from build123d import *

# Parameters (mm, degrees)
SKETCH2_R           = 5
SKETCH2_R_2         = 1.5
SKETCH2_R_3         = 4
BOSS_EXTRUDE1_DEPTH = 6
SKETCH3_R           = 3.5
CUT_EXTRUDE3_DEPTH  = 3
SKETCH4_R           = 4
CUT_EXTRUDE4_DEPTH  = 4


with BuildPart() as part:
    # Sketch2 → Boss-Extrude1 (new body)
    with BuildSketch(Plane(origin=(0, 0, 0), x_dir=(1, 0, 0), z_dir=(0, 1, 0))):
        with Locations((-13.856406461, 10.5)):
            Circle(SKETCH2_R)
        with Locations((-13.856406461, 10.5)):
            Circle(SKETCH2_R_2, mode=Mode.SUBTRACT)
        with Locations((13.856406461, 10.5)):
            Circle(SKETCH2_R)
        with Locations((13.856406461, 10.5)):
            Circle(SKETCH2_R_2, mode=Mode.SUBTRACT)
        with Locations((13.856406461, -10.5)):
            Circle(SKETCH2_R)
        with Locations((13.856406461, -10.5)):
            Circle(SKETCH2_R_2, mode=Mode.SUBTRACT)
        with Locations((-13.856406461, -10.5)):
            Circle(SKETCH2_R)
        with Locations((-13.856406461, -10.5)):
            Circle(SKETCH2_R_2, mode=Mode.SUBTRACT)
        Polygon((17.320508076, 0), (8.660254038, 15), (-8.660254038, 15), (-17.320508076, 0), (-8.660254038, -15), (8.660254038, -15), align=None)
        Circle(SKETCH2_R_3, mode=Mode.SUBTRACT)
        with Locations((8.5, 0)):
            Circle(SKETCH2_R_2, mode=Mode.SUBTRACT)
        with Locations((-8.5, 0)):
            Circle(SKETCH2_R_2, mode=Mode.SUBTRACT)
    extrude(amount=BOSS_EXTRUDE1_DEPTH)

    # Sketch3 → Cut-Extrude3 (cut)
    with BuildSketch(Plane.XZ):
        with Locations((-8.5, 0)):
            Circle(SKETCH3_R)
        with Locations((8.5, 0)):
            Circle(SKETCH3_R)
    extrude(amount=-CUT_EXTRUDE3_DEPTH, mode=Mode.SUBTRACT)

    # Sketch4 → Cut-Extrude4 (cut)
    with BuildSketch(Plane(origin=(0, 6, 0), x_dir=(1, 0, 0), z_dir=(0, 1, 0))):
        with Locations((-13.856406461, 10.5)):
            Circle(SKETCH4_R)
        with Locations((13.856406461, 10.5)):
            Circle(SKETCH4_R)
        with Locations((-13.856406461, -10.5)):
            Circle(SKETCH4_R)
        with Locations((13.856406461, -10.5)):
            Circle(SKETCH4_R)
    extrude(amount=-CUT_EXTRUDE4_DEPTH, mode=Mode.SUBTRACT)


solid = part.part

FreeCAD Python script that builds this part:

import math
import FreeCAD as App
import Part
import Sketcher
from FreeCAD import Vector
Q = App.Units.Quantity

doc = App.newDocument("Part")
body = doc.addObject("PartDesign::Body", "Body")

# Sketch on XZ plane
sketch1 = body.newObject("Sketcher::SketchObject", "Sketch")
sketch1.AttachmentSupport = (doc.getObject("XZ_Plane"), [""])
sketch1.MapMode = "FlatFace"
sketch1.addGeometry([
    Part.LineSegment(Vector(14.140421, 5.508073, 0), Vector(17.320508, 0, 0)),  # 0
    Part.LineSegment(Vector(17.320508, 0, 0), Vector(14.140421, -5.508073, 0)),  # 1
    Part.ArcOfCircle(Part.Circle(Vector(13.856406, -10.5, 0), Vector(0, 0, 1), 5), math.radians(-146.743684), math.radians(86.743684)),  # 2
    Part.LineSegment(Vector(9.675278, -13.241927, 0), Vector(8.660254, -15, 0)),  # 3
    Part.LineSegment(Vector(8.660254, -15, 0), Vector(-8.660254, -15, 0)),  # 4
    Part.LineSegment(Vector(-8.660254, -15, 0), Vector(-9.675278, -13.241927, 0)),  # 5
    Part.ArcOfCircle(Part.Circle(Vector(-13.856406, -10.5, 0), Vector(0, 0, 1), 5), math.radians(93.256316), math.radians(326.743684)),  # 6
    Part.LineSegment(Vector(-14.140421, -5.508073, 0), Vector(-17.320508, 0, 0)),  # 7
    Part.LineSegment(Vector(-17.320508, 0, 0), Vector(-14.140421, 5.508073, 0)),  # 8
    Part.ArcOfCircle(Part.Circle(Vector(-13.856406, 10.5, 0), Vector(0, 0, 1), 5), math.radians(33.256316), math.radians(266.743684)),  # 9
    Part.LineSegment(Vector(-9.675278, 13.241927, 0), Vector(-8.660254, 15, 0)),  # 10
    Part.LineSegment(Vector(-8.660254, 15, 0), Vector(8.660254, 15, 0)),  # 11
    Part.LineSegment(Vector(8.660254, 15, 0), Vector(9.675278, 13.241927, 0)),  # 12
    Part.ArcOfCircle(Part.Circle(Vector(13.856406, 10.5, 0), Vector(0, 0, 1), 5), math.radians(-86.743684), math.radians(146.743684)),  # 13
    Part.Circle(Vector(-13.856406, 10.5, 0), Vector(0, 0, 1), 1.5),  # 14
    Part.Circle(Vector(13.856406, 10.5, 0), Vector(0, 0, 1), 1.5),  # 15
    Part.Circle(Vector(-8.5, 0, 0), Vector(0, 0, 1), 1.5),  # 16
    Part.Circle(Vector(0, 0, 0), Vector(0, 0, 1), 4),  # 17
    Part.Circle(Vector(-13.856406, -10.5, 0), Vector(0, 0, 1), 1.5),  # 18
    Part.Circle(Vector(8.5, 0, 0), Vector(0, 0, 1), 1.5),  # 19
    Part.Circle(Vector(13.856406, -10.5, 0), Vector(0, 0, 1), 1.5),  # 20
], False)
sketch1.addConstraint([
    Sketcher.Constraint("Coincident", 0, 2, 1, 1),
    Sketcher.Constraint("Coincident", 1, 2, 2, 2),
    Sketcher.Constraint("Coincident", 2, 1, 3, 1),
    Sketcher.Constraint("Coincident", 3, 2, 4, 1),
    Sketcher.Constraint("Coincident", 4, 2, 5, 1),
    Sketcher.Constraint("Coincident", 5, 2, 6, 2),
    Sketcher.Constraint("Coincident", 6, 1, 7, 1),
    Sketcher.Constraint("Coincident", 7, 2, 8, 1),
    Sketcher.Constraint("Coincident", 8, 2, 9, 2),
    Sketcher.Constraint("Coincident", 9, 1, 10, 1),
    Sketcher.Constraint("Coincident", 10, 2, 11, 1),
    Sketcher.Constraint("Coincident", 11, 2, 12, 1),
    Sketcher.Constraint("Coincident", 12, 2, 13, 2),
    Sketcher.Constraint("Coincident", 13, 1, 0, 1),
    Sketcher.Constraint("Horizontal", 4),
    Sketcher.Constraint("Horizontal", 11),
    Sketcher.Constraint("Coincident", 17, 3, -1, 1),
    Sketcher.Constraint("Coincident", 14, 3, 9, 3),
    Sketcher.Constraint("Coincident", 15, 3, 13, 3),
    Sketcher.Constraint("Coincident", 18, 3, 6, 3),
    Sketcher.Constraint("Coincident", 20, 3, 2, 3),
    Sketcher.Constraint("Equal", 2, 6),
    Sketcher.Constraint("Equal", 6, 9),
    Sketcher.Constraint("Equal", 9, 13),
    Sketcher.Constraint("Equal", 14, 15),
    Sketcher.Constraint("Equal", 15, 16),
    Sketcher.Constraint("Equal", 16, 18),
    Sketcher.Constraint("Equal", 18, 19),
    Sketcher.Constraint("Equal", 19, 20),
    Sketcher.Constraint("Symmetric", 2, 3, 9, 3, -1, 1),
    Sketcher.Constraint("Symmetric", 6, 3, 13, 3, -1, 1),
    Sketcher.Constraint("Symmetric", 16, 3, 19, 3, -1, 1),
    Sketcher.Constraint("Symmetric", 0, 2, 7, 2, -1, 1),
    Sketcher.Constraint("Symmetric", 3, 2, 10, 2, -1, 1),
    Sketcher.Constraint("Symmetric", 2, 3, 6, 3, -2),
    Sketcher.Constraint("PointOnObject", 16, 3, -1),
    Sketcher.Constraint("PointOnObject", 0, 2, -1),
    Sketcher.Constraint("Parallel", 1, 3),
    Sketcher.Constraint("Parallel", 0, 5),
    Sketcher.Constraint("Parallel", 5, 7),
    Sketcher.Constraint("Parallel", 3, 8),
    Sketcher.Constraint("Parallel", 8, 10),
    Sketcher.Constraint("Parallel", 7, 12),
    Sketcher.Constraint("Horizontal", 2, 1, 5, 2),
    Sketcher.Constraint("Horizontal", 1, 2, 6, 1),
    Sketcher.Constraint("Horizontal", 9, 1, 12, 2),
    Sketcher.Constraint("Diameter", 14, 3.0),
    Sketcher.Constraint("Diameter", 17, 8.0),
    Sketcher.Constraint("Radius", 2, 5.0),
    Sketcher.Constraint("Angle", 0, Q("-60 deg")),
    Sketcher.Constraint("DistanceY", 3, 2, -1, 1, 15.0),
    Sketcher.Constraint("DistanceY", 6, 3, 9, 3, 21.0),
    Sketcher.Constraint("DistanceX", 16, 3, 19, 3, 17.0),
    Sketcher.Constraint("DistanceX", 4, 2, 4, 1, 17.320508),
    Sketcher.Constraint("DistanceX", 2, 3, 0, 2, 3.464102),
    Sketcher.Constraint("DistanceX", -1, 1, 0, 2, 17.320508),
])
pad1 = body.newObject("PartDesign::Pad", "Pad")
pad1.Profile = sketch1
pad1.Length = 6
pad1.Reversed = True

# Sketch on XZ plane
sketch2 = body.newObject("Sketcher::SketchObject", "Sketch001")
sketch2.AttachmentSupport = (doc.getObject("XZ_Plane"), [""])
sketch2.MapMode = "FlatFace"
sketch2.addGeometry([
    Part.Circle(Vector(-8.5, 0, 0), Vector(0, 0, 1), 3.5),
    Part.Circle(Vector(8.5, 0, 0), Vector(0, 0, 1), 3.5),
], False)
sketch2.addConstraint([
    Sketcher.Constraint("Equal", 0, 1),
    Sketcher.Constraint("Symmetric", 0, 3, 1, 3, -1, 1),
    Sketcher.Constraint("PointOnObject", 0, 3, -1),
    Sketcher.Constraint("Diameter", 0, 7.0),
    Sketcher.Constraint("DistanceX", 0, 3, 1, 3, 17.0),
])
pocket1 = body.newObject("PartDesign::Pocket", "Pocket")
pocket1.Profile = sketch2
pocket1.Length = 3

# Sketch on XZ plane
sketch3 = body.newObject("Sketcher::SketchObject", "Sketch002")
sketch3.AttachmentSupport = (doc.getObject("XZ_Plane"), [""])
sketch3.MapMode = "FlatFace"
sketch3.AttachmentOffset = App.Placement(Vector(0, 0, -6), App.Rotation())
sketch3.addGeometry([
    Part.Circle(Vector(-13.856406, -10.5, 0), Vector(0, 0, 1), 4),
    Part.Circle(Vector(13.856406, -10.5, 0), Vector(0, 0, 1), 4),
    Part.Circle(Vector(-13.856406, 10.5, 0), Vector(0, 0, 1), 4),
    Part.Circle(Vector(13.856406, 10.5, 0), Vector(0, 0, 1), 4),
], False)
sketch3.addConstraint([
    Sketcher.Constraint("Equal", 0, 1),
    Sketcher.Constraint("Equal", 1, 2),
    Sketcher.Constraint("Equal", 2, 3),
    Sketcher.Constraint("Symmetric", 1, 3, 2, 3, -1, 1),
    Sketcher.Constraint("Symmetric", 0, 3, 3, 3, -1, 1),
    Sketcher.Constraint("Symmetric", 0, 3, 1, 3, -2),
    Sketcher.Constraint("Diameter", 0, 8.0),
    Sketcher.Constraint("DistanceY", 0, 3, 2, 3, 21.0),
    Sketcher.Constraint("DistanceX", 0, 3, -1, 1, 13.856406),
])
pocket2 = body.newObject("PartDesign::Pocket", "Pocket001")
pocket2.Profile = sketch3
pocket2.Length = 4
pocket2.Reversed = True

doc.recompute()
